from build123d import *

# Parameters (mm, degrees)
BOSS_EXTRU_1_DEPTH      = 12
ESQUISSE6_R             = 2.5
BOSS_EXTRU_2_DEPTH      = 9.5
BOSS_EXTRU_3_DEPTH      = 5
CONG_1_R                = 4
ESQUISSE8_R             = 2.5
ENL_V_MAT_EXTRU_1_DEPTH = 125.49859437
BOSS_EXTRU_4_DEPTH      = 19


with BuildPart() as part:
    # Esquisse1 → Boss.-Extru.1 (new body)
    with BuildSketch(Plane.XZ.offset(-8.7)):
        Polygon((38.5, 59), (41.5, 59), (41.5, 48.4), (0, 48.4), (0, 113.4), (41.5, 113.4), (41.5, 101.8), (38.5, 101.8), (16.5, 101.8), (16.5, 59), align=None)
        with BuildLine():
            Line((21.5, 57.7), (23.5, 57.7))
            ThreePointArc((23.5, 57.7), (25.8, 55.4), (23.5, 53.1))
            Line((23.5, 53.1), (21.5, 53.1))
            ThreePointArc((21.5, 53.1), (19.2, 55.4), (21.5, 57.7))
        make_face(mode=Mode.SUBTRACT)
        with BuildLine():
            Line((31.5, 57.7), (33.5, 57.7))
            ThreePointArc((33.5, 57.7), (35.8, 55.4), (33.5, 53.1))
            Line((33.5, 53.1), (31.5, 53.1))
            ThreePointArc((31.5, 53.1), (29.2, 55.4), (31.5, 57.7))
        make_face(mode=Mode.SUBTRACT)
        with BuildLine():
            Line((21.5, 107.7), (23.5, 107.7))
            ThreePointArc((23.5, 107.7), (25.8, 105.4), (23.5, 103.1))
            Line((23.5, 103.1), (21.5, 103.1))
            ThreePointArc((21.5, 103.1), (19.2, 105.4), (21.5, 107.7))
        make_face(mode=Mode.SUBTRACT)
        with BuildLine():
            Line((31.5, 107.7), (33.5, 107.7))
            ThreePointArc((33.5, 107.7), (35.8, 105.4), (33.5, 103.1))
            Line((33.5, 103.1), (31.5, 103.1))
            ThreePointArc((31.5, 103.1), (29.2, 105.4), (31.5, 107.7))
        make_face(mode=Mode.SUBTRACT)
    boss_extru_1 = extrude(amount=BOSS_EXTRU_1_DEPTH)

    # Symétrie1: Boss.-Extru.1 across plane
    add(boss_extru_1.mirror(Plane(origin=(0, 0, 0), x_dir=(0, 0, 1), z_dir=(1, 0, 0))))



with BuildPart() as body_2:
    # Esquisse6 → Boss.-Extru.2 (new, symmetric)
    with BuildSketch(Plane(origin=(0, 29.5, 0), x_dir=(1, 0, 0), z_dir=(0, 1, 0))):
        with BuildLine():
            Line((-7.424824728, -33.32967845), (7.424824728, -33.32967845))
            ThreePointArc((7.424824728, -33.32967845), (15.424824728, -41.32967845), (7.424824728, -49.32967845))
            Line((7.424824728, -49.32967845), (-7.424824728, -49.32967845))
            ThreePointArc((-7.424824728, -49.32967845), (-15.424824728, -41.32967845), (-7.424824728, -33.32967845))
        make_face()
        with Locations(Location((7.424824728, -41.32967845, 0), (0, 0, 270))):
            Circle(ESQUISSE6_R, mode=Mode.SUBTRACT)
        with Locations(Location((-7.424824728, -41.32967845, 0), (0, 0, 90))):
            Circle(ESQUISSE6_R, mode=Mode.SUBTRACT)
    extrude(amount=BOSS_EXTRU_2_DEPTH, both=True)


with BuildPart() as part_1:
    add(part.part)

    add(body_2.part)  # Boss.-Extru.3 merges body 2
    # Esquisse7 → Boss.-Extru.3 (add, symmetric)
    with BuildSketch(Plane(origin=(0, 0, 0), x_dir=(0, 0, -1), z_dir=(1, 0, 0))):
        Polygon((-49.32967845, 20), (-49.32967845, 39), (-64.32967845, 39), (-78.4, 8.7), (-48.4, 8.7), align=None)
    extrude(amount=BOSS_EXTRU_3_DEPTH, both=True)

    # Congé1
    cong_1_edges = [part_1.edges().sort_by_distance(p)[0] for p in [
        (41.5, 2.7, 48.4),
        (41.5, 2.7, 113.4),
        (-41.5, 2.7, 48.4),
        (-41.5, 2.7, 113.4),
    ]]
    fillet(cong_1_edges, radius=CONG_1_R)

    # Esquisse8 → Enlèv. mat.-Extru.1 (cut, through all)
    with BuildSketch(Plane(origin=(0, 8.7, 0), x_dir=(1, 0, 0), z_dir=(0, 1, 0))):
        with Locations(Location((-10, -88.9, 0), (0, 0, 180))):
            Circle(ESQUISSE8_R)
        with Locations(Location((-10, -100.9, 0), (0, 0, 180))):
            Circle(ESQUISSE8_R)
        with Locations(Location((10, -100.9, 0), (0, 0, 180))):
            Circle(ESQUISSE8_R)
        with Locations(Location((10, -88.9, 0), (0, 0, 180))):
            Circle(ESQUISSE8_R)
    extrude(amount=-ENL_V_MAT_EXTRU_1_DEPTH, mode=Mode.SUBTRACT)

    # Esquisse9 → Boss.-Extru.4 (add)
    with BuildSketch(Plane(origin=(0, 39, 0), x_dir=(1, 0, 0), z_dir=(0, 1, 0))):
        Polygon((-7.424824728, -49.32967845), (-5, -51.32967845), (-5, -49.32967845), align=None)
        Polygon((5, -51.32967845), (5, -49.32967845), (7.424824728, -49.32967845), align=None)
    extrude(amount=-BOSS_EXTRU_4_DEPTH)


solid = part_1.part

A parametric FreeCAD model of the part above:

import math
import FreeCAD as App
import Part
import Sketcher
Q = App.Units.Quantity


def edges_at(feature, points):
    """Names of the edges that pass closest to the given points."""
    edges = feature.Shape.Edges
    near = lambda p: min(range(len(edges)), key=lambda i: edges[i].distToShape(Part.Vertex(*p))[0])
    return sorted({f"Edge{near(p) + 1}" for p in points})

doc = App.newDocument("Part")
body = doc.addObject("PartDesign::Body", "Body")

# Sketch on XZ plane
sketch1 = doc.addObject("Sketcher::SketchObject", "Sketch")
body.addObject(sketch1)
sketch1.AttachmentSupport = (doc.XZ_Plane, [""])
sketch1.MapMode = "FlatFace"
sketch1.AttachmentOffset = App.Placement(App.Vector(0, 0, -8.7), App.Rotation())
sketch1.addGeometry([
    Part.LineSegment(App.Vector(41.5, 59, 0), App.Vector(16.5, 59, 0)),  # 0
    Part.LineSegment(App.Vector(16.5, 59, 0), App.Vector(16.5, 101.8, 0)),  # 1
    Part.LineSegment(App.Vector(16.5, 101.8, 0), App.Vector(41.5, 101.8, 0)),  # 2
    Part.LineSegment(App.Vector(41.5, 101.8, 0), App.Vector(41.5, 113.4, 0)),  # 3
    Part.LineSegment(App.Vector(41.5, 113.4, 0), App.Vector(0, 113.4, 0)),  # 4
    Part.LineSegment(App.Vector(0, 113.4, 0), App.Vector(0, 48.4, 0)),  # 5
    Part.LineSegment(App.Vector(0, 48.4, 0), App.Vector(41.5, 48.4, 0)),  # 6
    Part.LineSegment(App.Vector(41.5, 48.4, 0), App.Vector(41.5, 59, 0)),  # 7
    Part.LineSegment(App.Vector(31.5, 57.7, 0), App.Vector(33.5, 57.7, 0)),  # 8
    Part.ArcOfCircle(Part.Circle(App.Vector(33.5, 55.4, 0), App.Vector(0, 0, 1), 2.3), math.radians(-90), math.radians(90)),  # 9
    Part.LineSegment(App.Vector(33.5, 53.1, 0), App.Vector(31.5, 53.1, 0)),  # 10
    Part.ArcOfCircle(Part.Circle(App.Vector(31.5, 55.4, 0), App.Vector(0, 0, 1), 2.3), math.radians(90), math.radians(270)),  # 11
    Part.LineSegment(App.Vector(21.5, 57.7, 0), App.Vector(23.5, 57.7, 0)),  # 12
    Part.ArcOfCircle(Part.Circle(App.Vector(23.5, 55.4, 0), App.Vector(0, 0, 1), 2.3), math.radians(-90), math.radians(90)),  # 13
    Part.LineSegment(App.Vector(23.5, 53.1, 0), App.Vector(21.5, 53.1, 0)),  # 14
    Part.ArcOfCircle(Part.Circle(App.Vector(21.5, 55.4, 0), App.Vector(0, 0, 1), 2.3), math.radians(90), math.radians(270)),  # 15
    Part.LineSegment(App.Vector(31.5, 107.7, 0), App.Vector(33.5, 107.7, 0)),  # 16
    Part.ArcOfCircle(Part.Circle(App.Vector(33.5, 105.4, 0), App.Vector(0, 0, 1), 2.3), math.radians(-90), math.radians(90)),  # 17
    Part.LineSegment(App.Vector(33.5, 103.1, 0), App.Vector(31.5, 103.1, 0)),  # 18
    Part.ArcOfCircle(Part.Circle(App.Vector(31.5, 105.4, 0), App.Vector(0, 0, 1), 2.3), math.radians(90), math.radians(270)),  # 19
    Part.LineSegment(App.Vector(21.5, 107.7, 0), App.Vector(23.5, 107.7, 0)),  # 20
    Part.ArcOfCircle(Part.Circle(App.Vector(23.5, 105.4, 0), App.Vector(0, 0, 1), 2.3), math.radians(-90), math.radians(90)),  # 21
    Part.LineSegment(App.Vector(23.5, 103.1, 0), App.Vector(21.5, 103.1, 0)),  # 22
    Part.ArcOfCircle(Part.Circle(App.Vector(21.5, 105.4, 0), App.Vector(0, 0, 1), 2.3), math.radians(90), math.radians(270)),  # 23
], False)
sketch1.addConstraint([
    Sketcher.Constraint("Coincident", 0, 2, 1, 1),
    Sketcher.Constraint("Coincident", 1, 2, 2, 1),
    Sketcher.Constraint("Coincident", 2, 2, 3, 1),
    Sketcher.Constraint("Coincident", 3, 2, 4, 1),
    Sketcher.Constraint("Coincident", 4, 2, 5, 1),
    Sketcher.Constraint("Coincident", 5, 2, 6, 1),
    Sketcher.Constraint("Coincident", 6, 2, 7, 1),
    Sketcher.Constraint("Coincident", 7, 2, 0, 1),
    Sketcher.Constraint("Tangent", 8, 2, 9, 2),
    Sketcher.Constraint("Tangent", 9, 1, 10, 1),
    Sketcher.Constraint("Tangent", 10, 2, 11, 2),
    Sketcher.Constraint("Tangent", 11, 1, 8, 1),
    Sketcher.Constraint("Tangent", 12, 2, 13, 2),
    Sketcher.Constraint("Tangent", 13, 1, 14, 1),
    Sketcher.Constraint("Tangent", 14, 2, 15, 2),
    Sketcher.Constraint("Tangent", 15, 1, 12, 1),
    Sketcher.Constraint("Tangent", 16, 2, 17, 2),
    Sketcher.Constraint("Tangent", 17, 1, 18, 1),
    Sketcher.Constraint("Tangent", 18, 2, 19, 2),
    Sketcher.Constraint("Tangent", 19, 1, 16, 1),
    Sketcher.Constraint("Tangent", 20, 2, 21, 2),
    Sketcher.Constraint("Tangent", 21, 1, 22, 1),
    Sketcher.Constraint("Tangent", 22, 2, 23, 2),
    Sketcher.Constraint("Tangent", 23, 1, 20, 1),
    Sketcher.Constraint("Horizontal", 0),
    Sketcher.Constraint("Vertical", 1),
    Sketcher.Constraint("Horizontal", 2),
    Sketcher.Constraint("Vertical", 3),
    Sketcher.Constraint("Horizontal", 4),
    Sketcher.Constraint("Vertical", 5),
    Sketcher.Constraint("Horizontal", 6),
    Sketcher.Constraint("Vertical", 7),
    Sketcher.Constraint("Horizontal", 8),
    Sketcher.Constraint("Horizontal", 10),
    Sketcher.Constraint("Horizontal", 12),
    Sketcher.Constraint("Horizontal", 14),
    Sketcher.Constraint("Horizontal", 16),
    Sketcher.Constraint("Horizontal", 18),
    Sketcher.Constraint("Horizontal", 20),
    Sketcher.Constraint("Horizontal", 22),
    Sketcher.Constraint("Equal", 11, 13),
    Sketcher.Constraint("Equal", 15, 17),
    Sketcher.Constraint("Equal", 19, 21),
    Sketcher.Constraint("PointOnObject", 4, 2, -2),
    Sketcher.Constraint("Horizontal", 11, 3, 13, 3),
    Sketcher.Constraint("Horizontal", 19, 3, 21, 3),
    Sketcher.Constraint("Vertical", 9, 3, 17, 3),
    Sketcher.Constraint("Vertical", 11, 3, 19, 3),
    Sketcher.Constraint("Vertical", 13, 3, 21, 3),
    Sketcher.Constraint("Vertical", 15, 3, 23, 3),
    Sketcher.Constraint("Vertical", 3, 2, 6, 2),
    Sketcher.Constraint("Equal", 10, 12),
    Sketcher.Constraint("Radius", 9, Q("2.3 mm")),
    Sketcher.Constraint("DistanceX", 0, 2, 0, 1, Q("25 mm")),
    Sketcher.Constraint("DistanceX", 8, 1, 8, 2, Q("2 mm")),
    Sketcher.Constraint("DistanceY", 5, 2, 5, 1, Q("65 mm")),
    Sketcher.Constraint("DistanceX", 4, 2, 4, 1, Q("41.5 mm")),
    Sketcher.Constraint("DistanceY", 1, 1, 1, 2, Q("42.8 mm")),
    Sketcher.Constraint("DistanceY", 3, 1, 3, 2, Q("11.6 mm")),
    Sketcher.Constraint("DistanceY", -1, 1, 0, 2, Q("59 mm")),
    Sketcher.Constraint("DistanceX", 13, 3, 11, 3, Q("8 mm")),
    Sketcher.Constraint("DistanceY", 9, 3, 17, 3, Q("50 mm")),
    Sketcher.Constraint("DistanceX", 0, 2, 15, 3, Q("5 mm")),
    Sketcher.Constraint("DistanceY", 17, 3, 3, 2, Q("8 mm")),
])
pad1 = doc.addObject("PartDesign::Pad", "Pad")
body.addObject(pad1)
pad1.Profile = sketch1
pad1.Length = 12
doc.recompute()

mirrored = doc.addObject("PartDesign::Mirrored", "Mirrored")
body.addObject(mirrored)
mirrored.Originals = [pad1]
mirrored.MirrorPlane = (doc.YZ_Plane, [""])
body.Tip = mirrored
body2 = doc.addObject("PartDesign::Body", "Body001")

# Sketch on XZ plane
sketch2 = doc.addObject("Sketcher::SketchObject", "Sketch001")
body2.addObject(sketch2)
sketch2.AttachmentSupport = (doc.getObject("XZ_Plane001"), [""])
sketch2.MapMode = "FlatFace"
sketch2.AttachmentOffset = App.Placement(App.Vector(0, 0, -29.5), App.Rotation())
sketch2.addGeometry([
    Part.LineSegment(App.Vector(7.424825, 33.329678, 0), App.Vector(-7.424825, 33.329678, 0)),  # 0
    Part.ArcOfCircle(Part.Circle(App.Vector(-7.424825, 41.329678, 0), App.Vector(0, 0, 1), 8), math.radians(90), math.radians(270)),  # 1
    Part.LineSegment(App.Vector(-7.424825, 49.329678, 0), App.Vector(7.424825, 49.329678, 0)),  # 2
    Part.ArcOfCircle(Part.Circle(App.Vector(7.424825, 41.329678, 0), App.Vector(0, 0, 1), 8), math.radians(-90), math.radians(90)),  # 3
    Part.Circle(App.Vector(7.424825, 41.329678, 0), App.Vector(0, 0, 1), 2.5),  # 4
    Part.Circle(App.Vector(-7.424825, 41.329678, 0), App.Vector(0, 0, 1), 2.5),  # 5
], False)
sketch2.addConstraint([
    Sketcher.Constraint("Tangent", 0, 2, 1, 2),
    Sketcher.Constraint("Tangent", 1, 1, 2, 1),
    Sketcher.Constraint("Tangent", 2, 2, 3, 2),
    Sketcher.Constraint("Tangent", 3, 1, 0, 1),
    Sketcher.Constraint("Horizontal", 0),
    Sketcher.Constraint("Horizontal", 2),
    Sketcher.Constraint("Coincident", 4, 3, 3, 3),
    Sketcher.Constraint("Coincident", 5, 3, 1, 3),
    Sketcher.Constraint("Equal", 4, 5),
    Sketcher.Constraint("Diameter", 4, Q("5 mm")),
    Sketcher.Constraint("Radius", 1, Q("8 mm")),
    Sketcher.Constraint("DistanceX", 0, 2, 0, 1, Q("14.849649 mm")),
    Sketcher.Constraint("DistanceY", -1, 1, 1, 3, Q("41.329678 mm")),
    Sketcher.Constraint("DistanceX", 1, 3, -1, 1, Q("7.424825 mm")),
])
pad2 = doc.addObject("PartDesign::Pad", "Pad001")
body2.addObject(pad2)
pad2.Profile = sketch2
pad2.Length = 19
pad2.Midplane = True
body.AllowCompound = True
doc.recompute()

boolean = doc.addObject("PartDesign::Boolean", "Boolean")
body.addObject(boolean)
boolean.Type = "Fuse"
boolean.addObjects([body2])

# Sketch on YZ plane
sketch3 = doc.addObject("Sketcher::SketchObject", "Sketch002")
body.addObject(sketch3)
sketch3.AttachmentSupport = (doc.YZ_Plane, [""])
sketch3.MapMode = "FlatFace"
sketch3.addGeometry([
    Part.LineSegment(App.Vector(20, 49.329678, 0), App.Vector(39, 49.329678, 0)),  # 0
    Part.LineSegment(App.Vector(39, 49.329678, 0), App.Vector(39, 64.329678, 0)),  # 1
    Part.LineSegment(App.Vector(39, 64.329678, 0), App.Vector(8.7, 78.4, 0)),  # 2
    Part.LineSegment(App.Vector(8.7, 78.4, 0), App.Vector(8.7, 48.4, 0)),  # 3
    Part.LineSegment(App.Vector(8.7, 48.4, 0), App.Vector(20, 49.329678, 0)),  # 4
], False)
sketch3.addConstraint([
    Sketcher.Constraint("Coincident", 0, 2, 1, 1),
    Sketcher.Constraint("Coincident", 1, 2, 2, 1),
    Sketcher.Constraint("Coincident", 2, 2, 3, 1),
    Sketcher.Constraint("Coincident", 3, 2, 4, 1),
    Sketcher.Constraint("Coincident", 4, 2, 0, 1),
    Sketcher.Constraint("Horizontal", 0),
    Sketcher.Constraint("Vertical", 1),
    Sketcher.Constraint("Vertical", 3),
    Sketcher.Constraint("DistanceX", 0, 1, 0, 2, Q("19 mm")),
    Sketcher.Constraint("DistanceY", 1, 1, 1, 2, Q("15 mm")),
    Sketcher.Constraint("DistanceY", 3, 2, 3, 1, Q("30 mm")),
    Sketcher.Constraint("DistanceX", -1, 1, 0, 2, Q("39 mm")),
    Sketcher.Constraint("DistanceX", -1, 1, 2, 2, Q("8.7 mm")),
    Sketcher.Constraint("DistanceY", -1, 1, 2, 2, Q("78.4 mm")),
    Sketcher.Constraint("Distance", 4, Q("11.338179 mm")),
])
pad3 = doc.addObject("PartDesign::Pad", "Pad002")
body.addObject(pad3)
pad3.Profile = sketch3
pad3.Length = 10
pad3.Midplane = True
doc.recompute()

fillet = doc.addObject("PartDesign::Fillet", "Fillet")
body.addObject(fillet)
fillet.Base = (pad3, edges_at(pad3, [
    (41.5, 2.7, 48.4),
    (41.5, 2.7, 113.4),
    (-41.5, 2.7, 48.4),
    (-41.5, 2.7, 113.4),
]))
fillet.Radius = 4

# Sketch on XZ plane
sketch4 = doc.addObject("Sketcher::SketchObject", "Sketch003")
body.addObject(sketch4)
sketch4.AttachmentSupport = (doc.XZ_Plane, [""])
sketch4.MapMode = "FlatFace"
sketch4.AttachmentOffset = App.Placement(App.Vector(0, 0, -8.7), App.Rotation())
sketch4.addGeometry([
    Part.Circle(App.Vector(-10, 88.9, 0), App.Vector(0, 0, 1), 2.5),
    Part.Circle(App.Vector(-10, 100.9, 0), App.Vector(0, 0, 1), 2.5),
    Part.Circle(App.Vector(10, 100.9, 0), App.Vector(0, 0, 1), 2.5),
    Part.Circle(App.Vector(10, 88.9, 0), App.Vector(0, 0, 1), 2.5),
], False)
sketch4.addConstraint([
    Sketcher.Constraint("Equal", 0, 1),
    Sketcher.Constraint("Equal", 1, 2),
    Sketcher.Constraint("Equal", 2, 3),
    Sketcher.Constraint("Symmetric", 1, 3, 2, 3, -2),
    Sketcher.Constraint("Symmetric", 0, 3, 3, 3, -2),
    Sketcher.Constraint("Vertical", 0, 3, 1, 3),
    Sketcher.Constraint("Diameter", 0, Q("5 mm")),
    Sketcher.Constraint("DistanceX", 0, 3, -1, 1, Q("10 mm")),
    Sketcher.Constraint("DistanceY", 0, 3, 1, 3, Q("12 mm")),
    Sketcher.Constraint("DistanceY", -1, 1, 0, 3, Q("88.9 mm")),
])
pocket1 = doc.addObject("PartDesign::Pocket", "Pocket")
body.addObject(pocket1)
pocket1.Profile = sketch4
pocket1.Type = "ThroughAll"
pocket1.Reversed = True

# Sketch on XZ plane
sketch5 = doc.addObject("Sketcher::SketchObject", "Sketch004")
body.addObject(sketch5)
sketch5.AttachmentSupport = (doc.XZ_Plane, [""])
sketch5.MapMode = "FlatFace"
sketch5.AttachmentOffset = App.Placement(App.Vector(0, 0, -39), App.Rotation())
sketch5.addGeometry([
    Part.LineSegment(App.Vector(-7.424825, 49.329678, 0), App.Vector(-5, 51.329678, 0)),  # 0
    Part.LineSegment(App.Vector(-5, 51.329678, 0), App.Vector(-5, 49.329678, 0)),  # 1
    Part.LineSegment(App.Vector(-5, 49.329678, 0), App.Vector(-7.424825, 49.329678, 0)),  # 2
    Part.LineSegment(App.Vector(5, 49.329678, 0), App.Vector(5, 51.329678, 0)),  # 3
    Part.LineSegment(App.Vector(5, 51.329678, 0), App.Vector(7.424825, 49.329678, 0)),  # 4
    Part.LineSegment(App.Vector(7.424825, 49.329678, 0), App.Vector(5, 49.329678, 0)),  # 5
], False)
sketch5.addConstraint([
    Sketcher.Constraint("Coincident", 0, 2, 1, 1),
    Sketcher.Constraint("Coincident", 1, 2, 2, 1),
    Sketcher.Constraint("Coincident", 2, 2, 0, 1),
    Sketcher.Constraint("Coincident", 3, 2, 4, 1),
    Sketcher.Constraint("Coincident", 4, 2, 5, 1),
    Sketcher.Constraint("Coincident", 5, 2, 3, 1),
    Sketcher.Constraint("Vertical", 1),
    Sketcher.Constraint("Horizontal", 2),
    Sketcher.Constraint("Vertical", 3),
    Sketcher.Constraint("Horizontal", 5),
    Sketcher.Constraint("Symmetric", 0, 2, 3, 2, -2),
    Sketcher.Constraint("Symmetric", 2, 2, 4, 2, -2),
    Sketcher.Constraint("DistanceY", 1, 2, 1, 1, Q("2 mm")),
    Sketcher.Constraint("DistanceX", 0, 2, -1, 1, Q("5 mm")),
    Sketcher.Constraint("Distance", 0, Q("3.143211 mm")),
    Sketcher.Constraint("DistanceY", -1, 1, 0, 2, Q("51.329678 mm")),
])
pad4 = doc.addObject("PartDesign::Pad", "Pad003")
body.addObject(pad4)
pad4.Profile = sketch5
pad4.Length = 19

doc.recompute()
